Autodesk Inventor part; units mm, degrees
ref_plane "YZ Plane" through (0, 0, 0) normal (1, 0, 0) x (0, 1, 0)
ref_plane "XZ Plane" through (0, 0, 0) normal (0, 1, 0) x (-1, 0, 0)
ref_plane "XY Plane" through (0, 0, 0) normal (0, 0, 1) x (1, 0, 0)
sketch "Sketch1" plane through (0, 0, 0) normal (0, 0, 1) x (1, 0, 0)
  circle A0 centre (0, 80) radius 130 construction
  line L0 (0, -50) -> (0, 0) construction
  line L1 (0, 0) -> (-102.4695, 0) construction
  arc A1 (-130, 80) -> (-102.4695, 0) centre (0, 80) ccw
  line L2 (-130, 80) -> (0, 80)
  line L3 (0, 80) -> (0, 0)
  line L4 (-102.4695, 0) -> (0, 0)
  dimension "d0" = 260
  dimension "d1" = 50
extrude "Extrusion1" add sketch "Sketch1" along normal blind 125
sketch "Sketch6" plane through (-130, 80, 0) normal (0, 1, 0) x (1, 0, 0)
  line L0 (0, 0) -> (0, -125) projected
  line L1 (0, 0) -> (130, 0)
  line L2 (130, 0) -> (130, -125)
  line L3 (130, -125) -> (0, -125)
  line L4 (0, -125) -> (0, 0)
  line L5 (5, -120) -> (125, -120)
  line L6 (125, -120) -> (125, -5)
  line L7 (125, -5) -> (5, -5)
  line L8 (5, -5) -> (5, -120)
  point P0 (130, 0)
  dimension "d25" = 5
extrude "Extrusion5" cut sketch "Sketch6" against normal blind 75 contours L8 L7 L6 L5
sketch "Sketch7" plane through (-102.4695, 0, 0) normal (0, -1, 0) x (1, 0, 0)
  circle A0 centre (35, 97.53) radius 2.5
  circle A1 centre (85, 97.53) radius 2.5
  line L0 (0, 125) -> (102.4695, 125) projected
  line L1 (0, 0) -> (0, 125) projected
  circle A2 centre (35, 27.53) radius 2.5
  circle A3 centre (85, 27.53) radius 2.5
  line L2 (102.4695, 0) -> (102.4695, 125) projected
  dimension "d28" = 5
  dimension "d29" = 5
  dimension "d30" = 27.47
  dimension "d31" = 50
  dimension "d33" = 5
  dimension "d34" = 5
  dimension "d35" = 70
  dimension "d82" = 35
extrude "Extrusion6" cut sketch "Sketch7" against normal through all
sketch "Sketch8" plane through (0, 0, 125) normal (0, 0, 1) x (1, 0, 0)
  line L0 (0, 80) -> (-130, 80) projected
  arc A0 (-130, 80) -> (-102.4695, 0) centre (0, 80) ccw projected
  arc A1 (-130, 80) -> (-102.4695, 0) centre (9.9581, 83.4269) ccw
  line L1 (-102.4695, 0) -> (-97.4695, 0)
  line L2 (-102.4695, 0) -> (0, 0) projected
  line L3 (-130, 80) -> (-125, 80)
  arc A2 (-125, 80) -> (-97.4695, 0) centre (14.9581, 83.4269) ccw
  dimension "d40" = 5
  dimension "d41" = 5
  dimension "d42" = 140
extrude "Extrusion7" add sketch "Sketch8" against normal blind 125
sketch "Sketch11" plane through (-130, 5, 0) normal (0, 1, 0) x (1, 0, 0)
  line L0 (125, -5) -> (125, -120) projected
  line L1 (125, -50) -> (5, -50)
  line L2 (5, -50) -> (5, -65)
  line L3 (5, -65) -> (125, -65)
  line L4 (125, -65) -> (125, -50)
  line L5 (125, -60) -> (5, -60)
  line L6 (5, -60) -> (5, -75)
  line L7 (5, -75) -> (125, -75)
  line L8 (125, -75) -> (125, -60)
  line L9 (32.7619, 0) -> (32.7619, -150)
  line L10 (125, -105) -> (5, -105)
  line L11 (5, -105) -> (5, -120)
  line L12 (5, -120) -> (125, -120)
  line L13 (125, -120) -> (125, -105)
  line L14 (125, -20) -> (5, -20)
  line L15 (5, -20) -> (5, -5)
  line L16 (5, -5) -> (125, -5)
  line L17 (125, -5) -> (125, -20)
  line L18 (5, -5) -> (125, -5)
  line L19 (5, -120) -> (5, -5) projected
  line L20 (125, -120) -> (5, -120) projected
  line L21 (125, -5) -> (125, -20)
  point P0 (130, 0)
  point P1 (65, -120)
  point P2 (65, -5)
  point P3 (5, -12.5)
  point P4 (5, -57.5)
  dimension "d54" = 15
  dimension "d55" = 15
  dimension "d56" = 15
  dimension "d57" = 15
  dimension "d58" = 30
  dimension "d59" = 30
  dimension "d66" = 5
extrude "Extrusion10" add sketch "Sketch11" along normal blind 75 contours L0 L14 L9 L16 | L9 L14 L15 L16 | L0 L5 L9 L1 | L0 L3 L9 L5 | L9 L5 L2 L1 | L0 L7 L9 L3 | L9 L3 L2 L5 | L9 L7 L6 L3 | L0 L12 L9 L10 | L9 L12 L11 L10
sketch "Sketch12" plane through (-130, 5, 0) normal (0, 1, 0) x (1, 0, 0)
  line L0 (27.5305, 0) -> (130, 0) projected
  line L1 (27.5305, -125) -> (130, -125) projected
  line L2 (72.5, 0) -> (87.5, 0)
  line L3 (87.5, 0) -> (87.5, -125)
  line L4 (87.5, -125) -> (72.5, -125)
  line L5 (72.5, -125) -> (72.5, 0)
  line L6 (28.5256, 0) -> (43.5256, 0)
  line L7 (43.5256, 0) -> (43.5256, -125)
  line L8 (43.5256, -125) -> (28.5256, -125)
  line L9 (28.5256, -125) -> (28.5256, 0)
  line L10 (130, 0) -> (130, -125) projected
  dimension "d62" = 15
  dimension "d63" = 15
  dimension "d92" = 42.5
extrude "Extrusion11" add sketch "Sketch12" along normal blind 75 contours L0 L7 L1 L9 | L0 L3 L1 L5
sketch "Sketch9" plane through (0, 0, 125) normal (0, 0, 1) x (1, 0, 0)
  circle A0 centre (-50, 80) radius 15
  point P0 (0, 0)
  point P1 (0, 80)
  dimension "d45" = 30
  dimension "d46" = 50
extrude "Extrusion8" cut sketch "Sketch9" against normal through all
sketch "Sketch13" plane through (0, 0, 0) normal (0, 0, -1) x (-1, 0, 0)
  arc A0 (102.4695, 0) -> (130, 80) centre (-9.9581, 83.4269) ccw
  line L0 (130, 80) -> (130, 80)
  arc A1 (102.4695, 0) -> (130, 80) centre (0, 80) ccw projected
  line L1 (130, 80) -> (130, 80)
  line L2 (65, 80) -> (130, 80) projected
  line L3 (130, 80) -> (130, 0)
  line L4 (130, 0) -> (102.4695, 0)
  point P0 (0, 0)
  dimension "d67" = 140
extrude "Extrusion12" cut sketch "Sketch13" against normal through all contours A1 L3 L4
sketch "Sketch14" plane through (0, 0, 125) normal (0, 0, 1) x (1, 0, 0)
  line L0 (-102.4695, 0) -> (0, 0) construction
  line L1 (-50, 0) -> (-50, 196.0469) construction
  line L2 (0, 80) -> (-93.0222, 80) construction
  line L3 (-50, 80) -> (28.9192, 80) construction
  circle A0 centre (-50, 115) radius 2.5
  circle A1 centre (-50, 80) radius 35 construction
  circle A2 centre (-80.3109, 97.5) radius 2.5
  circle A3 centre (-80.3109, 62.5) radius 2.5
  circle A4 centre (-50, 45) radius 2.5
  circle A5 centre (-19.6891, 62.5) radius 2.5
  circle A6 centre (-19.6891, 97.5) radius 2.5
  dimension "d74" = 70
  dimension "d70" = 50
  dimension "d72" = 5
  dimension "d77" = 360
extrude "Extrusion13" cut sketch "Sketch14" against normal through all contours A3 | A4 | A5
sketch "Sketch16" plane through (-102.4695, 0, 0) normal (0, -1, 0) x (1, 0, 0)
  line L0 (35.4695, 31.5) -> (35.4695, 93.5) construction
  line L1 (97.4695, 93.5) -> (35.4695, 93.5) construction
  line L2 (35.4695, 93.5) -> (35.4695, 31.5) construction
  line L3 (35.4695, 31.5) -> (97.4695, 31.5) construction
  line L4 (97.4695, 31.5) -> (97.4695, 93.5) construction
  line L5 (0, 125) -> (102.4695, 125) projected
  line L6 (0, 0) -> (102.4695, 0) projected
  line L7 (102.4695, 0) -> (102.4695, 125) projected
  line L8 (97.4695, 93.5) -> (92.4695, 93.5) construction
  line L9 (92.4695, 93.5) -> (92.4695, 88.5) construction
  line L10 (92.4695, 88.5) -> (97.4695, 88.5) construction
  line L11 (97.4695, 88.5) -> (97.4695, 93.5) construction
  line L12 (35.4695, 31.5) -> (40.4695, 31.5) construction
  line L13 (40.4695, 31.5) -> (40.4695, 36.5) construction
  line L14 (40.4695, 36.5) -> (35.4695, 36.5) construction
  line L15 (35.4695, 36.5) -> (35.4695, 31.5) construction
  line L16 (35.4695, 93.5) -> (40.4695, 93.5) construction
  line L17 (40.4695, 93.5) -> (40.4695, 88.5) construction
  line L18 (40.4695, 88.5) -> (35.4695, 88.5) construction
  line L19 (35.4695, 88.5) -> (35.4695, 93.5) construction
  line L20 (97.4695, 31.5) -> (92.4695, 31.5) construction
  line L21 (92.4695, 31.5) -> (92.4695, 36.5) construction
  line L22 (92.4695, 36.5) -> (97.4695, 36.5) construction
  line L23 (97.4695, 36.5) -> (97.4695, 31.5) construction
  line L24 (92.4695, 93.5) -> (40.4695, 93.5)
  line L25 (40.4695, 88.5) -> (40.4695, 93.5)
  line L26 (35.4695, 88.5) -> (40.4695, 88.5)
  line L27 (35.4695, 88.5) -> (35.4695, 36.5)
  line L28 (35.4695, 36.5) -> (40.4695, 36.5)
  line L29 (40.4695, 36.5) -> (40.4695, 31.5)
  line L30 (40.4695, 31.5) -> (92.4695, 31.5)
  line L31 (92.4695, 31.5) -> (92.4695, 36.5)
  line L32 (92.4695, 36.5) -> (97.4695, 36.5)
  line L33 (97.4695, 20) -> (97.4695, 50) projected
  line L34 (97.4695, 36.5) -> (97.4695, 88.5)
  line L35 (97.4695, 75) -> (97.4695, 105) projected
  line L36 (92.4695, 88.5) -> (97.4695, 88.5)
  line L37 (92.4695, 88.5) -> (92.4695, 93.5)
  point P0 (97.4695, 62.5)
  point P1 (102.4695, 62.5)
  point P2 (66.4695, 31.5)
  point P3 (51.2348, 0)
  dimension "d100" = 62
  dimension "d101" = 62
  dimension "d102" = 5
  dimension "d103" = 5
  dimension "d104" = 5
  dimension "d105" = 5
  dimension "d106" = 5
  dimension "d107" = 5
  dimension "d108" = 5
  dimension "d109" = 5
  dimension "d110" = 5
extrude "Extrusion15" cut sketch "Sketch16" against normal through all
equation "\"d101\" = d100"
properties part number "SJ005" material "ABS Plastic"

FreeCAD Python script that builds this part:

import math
import FreeCAD as App
import Part
import Sketcher
from FreeCAD import Vector

doc = App.newDocument("Part")
body = doc.addObject("PartDesign::Body", "Body")

# Sketch on XY plane
sketch1 = body.newObject("Sketcher::SketchObject", "Sketch")
sketch1.AttachmentSupport = (doc.getObject("XY_Plane"), [""])
sketch1.MapMode = "FlatFace"
sketch1.addGeometry([
    Part.LineSegment(Vector(0, 80, 0), Vector(-130, 80, 0)),
    Part.ArcOfCircle(Part.Circle(Vector(0, 80, 0), Vector(0, 0, 1), 130), math.radians(180), math.radians(217.979875)),
    Part.LineSegment(Vector(-102.4695, 0, 0), Vector(0, 0, 0)),
    Part.LineSegment(Vector(0, 0, 0), Vector(0, 80, 0)),
], False)
sketch1.addConstraint([
    Sketcher.Constraint("Coincident", 0, 2, 1, 1),
    Sketcher.Constraint("Coincident", 1, 2, 2, 1),
    Sketcher.Constraint("Coincident", 2, 2, 3, 1),
    Sketcher.Constraint("Coincident", 3, 2, 0, 1),
    Sketcher.Constraint("Horizontal", 0),
    Sketcher.Constraint("Horizontal", 2),
    Sketcher.Constraint("Vertical", 3),
    Sketcher.Constraint("Coincident", 2, 2, -1, 1),
    Sketcher.Constraint("Coincident", 3, 2, 1, 3),
    Sketcher.Constraint("Radius", 1, 130.0),
    Sketcher.Constraint("DistanceY", 3, 1, 3, 2, 80.0),
])
pad1 = body.newObject("PartDesign::Pad", "Pad")
pad1.Profile = sketch1
pad1.Length = 125

# Sketch on XZ plane
sketch2 = body.newObject("Sketcher::SketchObject", "Sketch001")
sketch2.AttachmentSupport = (doc.getObject("XZ_Plane"), [""])
sketch2.MapMode = "FlatFace"
sketch2.AttachmentOffset = App.Placement(Vector(0, 0, -80), App.Rotation())
sketch2.addGeometry([
    Part.LineSegment(Vector(-125, 5, 0), Vector(-125, 120, 0)),
    Part.LineSegment(Vector(-125, 120, 0), Vector(-5, 120, 0)),
    Part.LineSegment(Vector(-5, 120, 0), Vector(-5, 5, 0)),
    Part.LineSegment(Vector(-5, 5, 0), Vector(-125, 5, 0)),
], False)
sketch2.addConstraint([
    Sketcher.Constraint("Coincident", 0, 2, 1, 1),
    Sketcher.Constraint("Coincident", 1, 2, 2, 1),
    Sketcher.Constraint("Coincident", 2, 2, 3, 1),
    Sketcher.Constraint("Coincident", 3, 2, 0, 1),
    Sketcher.Constraint("Vertical", 0),
    Sketcher.Constraint("Horizontal", 1),
    Sketcher.Constraint("Vertical", 2),
    Sketcher.Constraint("Horizontal", 3),
    Sketcher.Constraint("DistanceX", 1, 2, -1, 1, 5.0),
    Sketcher.Constraint("DistanceY", -1, 1, 2, 2, 5.0),
    Sketcher.Constraint("DistanceX", 1, 1, 1, 2, 120.0),
    Sketcher.Constraint("DistanceY", 0, 1, 0, 2, 115.0),
])
pocket1 = body.newObject("PartDesign::Pocket", "Pocket")
pocket1.Profile = sketch2
pocket1.Length = 75
pocket1.Reversed = True

# Sketch on XZ plane
sketch3 = body.newObject("Sketcher::SketchObject", "Sketch002")
sketch3.AttachmentSupport = (doc.getObject("XZ_Plane"), [""])
sketch3.MapMode = "FlatFace"
sketch3.addGeometry([
    Part.Circle(Vector(-67.4695, 97.53, 0), Vector(0, 0, 1), 2.5),
    Part.Circle(Vector(-17.4695, 97.53, 0), Vector(0, 0, 1), 2.5),
    Part.Circle(Vector(-67.4695, 27.53, 0), Vector(0, 0, 1), 2.5),
    Part.Circle(Vector(-17.4695, 27.53, 0), Vector(0, 0, 1), 2.5),
], False)
sketch3.addConstraint([
    Sketcher.Constraint("Equal", 0, 1),
    Sketcher.Constraint("Equal", 1, 2),
    Sketcher.Constraint("Equal", 2, 3),
    Sketcher.Constraint("Horizontal", 0, 3, 1, 3),
    Sketcher.Constraint("Horizontal", 2, 3, 3, 3),
    Sketcher.Constraint("Vertical", 0, 3, 2, 3),
    Sketcher.Constraint("Vertical", 1, 3, 3, 3),
    Sketcher.Constraint("Diameter", 0, 5.0),
    Sketcher.Constraint("DistanceX", 0, 3, 1, 3, 50.0),
    Sketcher.Constraint("DistanceY", 2, 3, 0, 3, 70.0),
    Sketcher.Constraint("DistanceY", -1, 1, 0, 3, 97.53),
    Sketcher.Constraint("DistanceX", 0, 3, -1, 1, 67.4695),
])
pocket2 = body.newObject("PartDesign::Pocket", "Pocket001")
pocket2.Profile = sketch3
pocket2.Type = "ThroughAll"

# Sketch on XY plane
sketch4 = body.newObject("Sketcher::SketchObject", "Sketch003")
sketch4.AttachmentSupport = (doc.getObject("XY_Plane"), [""])
sketch4.MapMode = "FlatFace"
sketch4.AttachmentOffset = App.Placement(Vector(0, 0, 125), App.Rotation())
sketch4.addGeometry([
    Part.ArcOfCircle(Part.Circle(Vector(14.9581, 83.4269, 0), Vector(0, 0, 1), 140.000048), math.radians(-178.597382), math.radians(-143.422738)),
    Part.LineSegment(Vector(-125, 80, 0), Vector(-130, 80, 0)),
    Part.ArcOfCircle(Part.Circle(Vector(0, 80, 0), Vector(0, 0, 1), 130), math.radians(180), math.radians(217.979875)),
    Part.LineSegment(Vector(-102.4695, 0, 0), Vector(-97.4695, 0, 0)),
], False)
sketch4.addConstraint([
    Sketcher.Constraint("Coincident", 0, 1, 1, 1),
    Sketcher.Constraint("Coincident", 1, 2, 2, 1),
    Sketcher.Constraint("Coincident", 2, 2, 3, 1),
    Sketcher.Constraint("Coincident", 3, 2, 0, 2),
    Sketcher.Constraint("Horizontal", 1),
    Sketcher.Constraint("Horizontal", 3),
    Sketcher.Constraint("PointOnObject", 2, 3, -2),
    Sketcher.Constraint("PointOnObject", 2, 2, -1),
    Sketcher.Constraint("Horizontal", 2, 3, 0, 1),
    Sketcher.Constraint("Equal", 1, 3),
    Sketcher.Constraint("Radius", 0, 140.0),
    Sketcher.Constraint("DistanceX", 1, 2, 1, 1, 5.0),
    Sketcher.Constraint("Radius", 2, 130.0),
    Sketcher.Constraint("DistanceY", -1, 1, 2, 3, 80.0),
])
pad2 = body.newObject("PartDesign::Pad", "Pad001")
pad2.Profile = sketch4
pad2.Length = 125
pad2.Reversed = True

# Sketch on XZ plane
sketch5 = body.newObject("Sketcher::SketchObject", "Sketch004")
sketch5.AttachmentSupport = (doc.getObject("XZ_Plane"), [""])
sketch5.MapMode = "FlatFace"
sketch5.AttachmentOffset = App.Placement(Vector(0, 0, -5), App.Rotation())
sketch5.addGeometry([
    Part.LineSegment(Vector(-5, 20, 0), Vector(-5, 5, 0)),  # 0
    Part.LineSegment(Vector(-5, 5, 0), Vector(-125, 5, 0)),  # 1
    Part.LineSegment(Vector(-125, 5, 0), Vector(-125, 20, 0)),  # 2
    Part.LineSegment(Vector(-125, 20, 0), Vector(-5, 20, 0)),  # 3
    Part.LineSegment(Vector(-5, 50, 0), Vector(-125, 50, 0)),  # 4
    Part.LineSegment(Vector(-125, 50, 0), Vector(-125, 75, 0)),  # 5
    Part.LineSegment(Vector(-125, 75, 0), Vector(-5, 75, 0)),  # 6
    Part.LineSegment(Vector(-5, 75, 0), Vector(-5, 50, 0)),  # 7
    Part.LineSegment(Vector(-5, 120, 0), Vector(-5, 105, 0)),  # 8
    Part.LineSegment(Vector(-5, 105, 0), Vector(-125, 105, 0)),  # 9
    Part.LineSegment(Vector(-125, 105, 0), Vector(-125, 120, 0)),  # 10
    Part.LineSegment(Vector(-125, 120, 0), Vector(-5, 120, 0)),  # 11
], False)
sketch5.addConstraint([
    Sketcher.Constraint("Coincident", 0, 2, 1, 1),
    Sketcher.Constraint("Coincident", 1, 2, 2, 1),
    Sketcher.Constraint("Coincident", 2, 2, 3, 1),
    Sketcher.Constraint("Coincident", 3, 2, 0, 1),
    Sketcher.Constraint("Coincident", 4, 2, 5, 1),
    Sketcher.Constraint("Coincident", 5, 2, 6, 1),
    Sketcher.Constraint("Coincident", 6, 2, 7, 1),
    Sketcher.Constraint("Coincident", 7, 2, 4, 1),
    Sketcher.Constraint("Coincident", 8, 2, 9, 1),
    Sketcher.Constraint("Coincident", 9, 2, 10, 1),
    Sketcher.Constraint("Coincident", 10, 2, 11, 1),
    Sketcher.Constraint("Coincident", 11, 2, 8, 1),
    Sketcher.Constraint("Vertical", 0),
    Sketcher.Constraint("Horizontal", 1),
    Sketcher.Constraint("Vertical", 2),
    Sketcher.Constraint("Horizontal", 3),
    Sketcher.Constraint("Horizontal", 4),
    Sketcher.Constraint("Vertical", 5),
    Sketcher.Constraint("Horizontal", 6),
    Sketcher.Constraint("Vertical", 7),
    Sketcher.Constraint("Vertical", 8),
    Sketcher.Constraint("Horizontal", 9),
    Sketcher.Constraint("Vertical", 10),
    Sketcher.Constraint("Horizontal", 11),
    Sketcher.Constraint("Vertical", 2, 2, 4, 2),
    Sketcher.Constraint("Vertical", 3, 2, 6, 2),
    Sketcher.Constraint("Vertical", 7, 2, 8, 2),
    Sketcher.Constraint("Vertical", 5, 2, 9, 2),
    Sketcher.Constraint("Equal", 2, 8),
    Sketcher.Constraint("DistanceY", 0, 2, 0, 1, 15.0),
    Sketcher.Constraint("DistanceX", 0, 2, -1, 1, 5.0),
    Sketcher.Constraint("DistanceY", -1, 1, 0, 2, 5.0),
    Sketcher.Constraint("DistanceY", 2, 2, 4, 2, 30.0),
    Sketcher.Constraint("DistanceY", 6, 2, 8, 2, 30.0),
    Sketcher.Constraint("DistanceX", 1, 2, 1, 1, 120.0),
    Sketcher.Constraint("DistanceY", 5, 1, 5, 2, 25.0),
])
pad3 = body.newObject("PartDesign::Pad", "Pad002")
pad3.Profile = sketch5
pad3.Length = 75
pad3.Reversed = True

# Sketch on XZ plane
sketch6 = body.newObject("Sketcher::SketchObject", "Sketch005")
sketch6.AttachmentSupport = (doc.getObject("XZ_Plane"), [""])
sketch6.MapMode = "FlatFace"
sketch6.AttachmentOffset = App.Placement(Vector(0, 0, -5), App.Rotation())
sketch6.addGeometry([
    Part.LineSegment(Vector(-86.4744, 0, 0), Vector(-101.4744, 0, 0)),  # 0
    Part.LineSegment(Vector(-101.4744, 0, 0), Vector(-101.4744, 125, 0)),  # 1
    Part.LineSegment(Vector(-101.4744, 125, 0), Vector(-86.4744, 125, 0)),  # 2
    Part.LineSegment(Vector(-86.4744, 125, 0), Vector(-86.4744, 0, 0)),  # 3
    Part.LineSegment(Vector(-42.5, 0, 0), Vector(-57.5, 0, 0)),  # 4
    Part.LineSegment(Vector(-57.5, 0, 0), Vector(-57.5, 125, 0)),  # 5
    Part.LineSegment(Vector(-57.5, 125, 0), Vector(-42.5, 125, 0)),  # 6
    Part.LineSegment(Vector(-42.5, 125, 0), Vector(-42.5, 0, 0)),  # 7
], False)
sketch6.addConstraint([
    Sketcher.Constraint("Coincident", 0, 2, 1, 1),
    Sketcher.Constraint("Coincident", 1, 2, 2, 1),
    Sketcher.Constraint("Coincident", 2, 2, 3, 1),
    Sketcher.Constraint("Coincident", 3, 2, 0, 1),
    Sketcher.Constraint("Coincident", 4, 2, 5, 1),
    Sketcher.Constraint("Coincident", 5, 2, 6, 1),
    Sketcher.Constraint("Coincident", 6, 2, 7, 1),
    Sketcher.Constraint("Coincident", 7, 2, 4, 1),
    Sketcher.Constraint("Horizontal", 0),
    Sketcher.Constraint("Vertical", 1),
    Sketcher.Constraint("Horizontal", 2),
    Sketcher.Constraint("Vertical", 3),
    Sketcher.Constraint("Horizontal", 4),
    Sketcher.Constraint("Vertical", 5),
    Sketcher.Constraint("Horizontal", 6),
    Sketcher.Constraint("Vertical", 7),
    Sketcher.Constraint("PointOnObject", 0, 2, -1),
    Sketcher.Constraint("PointOnObject", 4, 2, -1),
    Sketcher.Constraint("Horizontal", 2, 2, 5, 2),
    Sketcher.Constraint("Equal", 2, 4),
    Sketcher.Constraint("DistanceX", 0, 2, 0, 1, 15.0),
    Sketcher.Constraint("DistanceX", 6, 2, -1, 1, 42.5),
    Sketcher.Constraint("DistanceY", 1, 1, 1, 2, 125.0),
    Sketcher.Constraint("DistanceX", 0, 2, -1, 1, 101.4744),
])
pad4 = body.newObject("PartDesign::Pad", "Pad003")
pad4.Profile = sketch6
pad4.Length = 75
pad4.Reversed = True

# Sketch on XY plane
sketch7 = body.newObject("Sketcher::SketchObject", "Sketch006")
sketch7.AttachmentSupport = (doc.getObject("XY_Plane"), [""])
sketch7.MapMode = "FlatFace"
sketch7.AttachmentOffset = App.Placement(Vector(0, 0, 125), App.Rotation())
sketch7.addGeometry(Part.Circle(Vector(-50, 80, 0), Vector(0, 0, 1), 15), False)
sketch7.addConstraint([
    Sketcher.Constraint("Diameter", 0, 30.0),
    Sketcher.Constraint("DistanceX", 0, 3, -1, 1, 50.0),
    Sketcher.Constraint("DistanceY", -1, 1, 0, 3, 80.0),
])
pocket3 = body.newObject("PartDesign::Pocket", "Pocket002")
pocket3.Profile = sketch7
pocket3.Type = "ThroughAll"

# Sketch on XY plane
sketch8 = body.newObject("Sketcher::SketchObject", "Sketch007")
sketch8.AttachmentSupport = (doc.getObject("XY_Plane"), [""])
sketch8.MapMode = "FlatFace"
sketch8.addGeometry([
    Part.ArcOfCircle(Part.Circle(Vector(0, 80, 0), Vector(0, 0, 1), 129.999994), math.radians(180), math.radians(217.979875)),
    Part.LineSegment(Vector(-102.4695, 0, 0), Vector(-130, 0, 0)),
    Part.LineSegment(Vector(-130, 0, 0), Vector(-130, 80, 0)),
], False)
sketch8.addConstraint([
    Sketcher.Constraint("Coincident", 0, 2, 1, 1),
    Sketcher.Constraint("Coincident", 1, 2, 2, 1),
    Sketcher.Constraint("Tangent", 2, 2, 0, 1),
    Sketcher.Constraint("Horizontal", 1),
    Sketcher.Constraint("Vertical", 2),
    Sketcher.Constraint("PointOnObject", 0, 3, -2),
    Sketcher.Constraint("PointOnObject", 0, 2, -1),
    Sketcher.Constraint("Radius", 0, 130.0),
    Sketcher.Constraint("DistanceY", 2, 1, 2, 2, 80.0),
])
pocket4 = body.newObject("PartDesign::Pocket", "Pocket003")
pocket4.Profile = sketch8
pocket4.Type = "ThroughAll"
pocket4.Reversed = True

# Sketch on XY plane
sketch9 = body.newObject("Sketcher::SketchObject", "Sketch008")
sketch9.AttachmentSupport = (doc.getObject("XY_Plane"), [""])
sketch9.MapMode = "FlatFace"
sketch9.AttachmentOffset = App.Placement(Vector(0, 0, 125), App.Rotation())
sketch9.addGeometry([
    Part.Circle(Vector(-80.3109, 62.5, 0), Vector(0, 0, 1), 2.5),
    Part.Circle(Vector(-50, 45, 0), Vector(0, 0, 1), 2.5),
    Part.Circle(Vector(-19.6891, 62.5, 0), Vector(0, 0, 1), 2.5),
], False)
sketch9.addConstraint([
    Sketcher.Constraint("Equal", 0, 1),
    Sketcher.Constraint("Equal", 1, 2),
    Sketcher.Constraint("Horizontal", 0, 3, 2, 3),
    Sketcher.Constraint("Diameter", 0, 5.0),
    Sketcher.Constraint("DistanceX", 1, 3, -1, 1, 50.0),
    Sketcher.Constraint("DistanceY", -1, 1, 1, 3, 45.0),
    Sketcher.Constraint("DistanceY", -1, 1, 0, 3, 62.5),
    Sketcher.Constraint("DistanceX", 0, 3, -1, 1, 80.311),
    Sketcher.Constraint("DistanceX", 2, 3, -1, 1, 19.689),
])
pocket5 = body.newObject("PartDesign::Pocket", "Pocket004")
pocket5.Profile = sketch9
pocket5.Type = "ThroughAll"

# Sketch on XZ plane
sketch10 = body.newObject("Sketcher::SketchObject", "Sketch009")
sketch10.AttachmentSupport = (doc.getObject("XZ_Plane"), [""])
sketch10.MapMode = "FlatFace"
sketch10.addGeometry([
    Part.LineSegment(Vector(-10, 88.5, 0), Vector(-10, 93.5, 0)),  # 0
    Part.LineSegment(Vector(-10, 93.5, 0), Vector(-62, 93.5, 0)),  # 1
    Part.LineSegment(Vector(-62, 93.5, 0), Vector(-62, 88.5, 0)),  # 2
    Part.LineSegment(Vector(-62, 88.5, 0), Vector(-67, 88.5, 0)),  # 3
    Part.LineSegment(Vector(-67, 88.5, 0), Vector(-67, 36.5, 0)),  # 4
    Part.LineSegment(Vector(-67, 36.5, 0), Vector(-62, 36.5, 0)),  # 5
    Part.LineSegment(Vector(-62, 36.5, 0), Vector(-62, 31.5, 0)),  # 6
    Part.LineSegment(Vector(-62, 31.5, 0), Vector(-10, 31.5, 0)),  # 7
    Part.LineSegment(Vector(-10, 31.5, 0), Vector(-10, 36.5, 0)),  # 8
    Part.LineSegment(Vector(-10, 36.5, 0), Vector(-5, 36.5, 0)),  # 9
    Part.LineSegment(Vector(-5, 36.5, 0), Vector(-5, 88.5, 0)),  # 10
    Part.LineSegment(Vector(-5, 88.5, 0), Vector(-10, 88.5, 0)),  # 11
], False)
sketch10.addConstraint([
    Sketcher.Constraint("Coincident", 0, 2, 1, 1),
    Sketcher.Constraint("Coincident", 1, 2, 2, 1),
    Sketcher.Constraint("Coincident", 2, 2, 3, 1),
    Sketcher.Constraint("Coincident", 3, 2, 4, 1),
    Sketcher.Constraint("Coincident", 4, 2, 5, 1),
    Sketcher.Constraint("Coincident", 5, 2, 6, 1),
    Sketcher.Constraint("Coincident", 6, 2, 7, 1),
    Sketcher.Constraint("Coincident", 7, 2, 8, 1),
    Sketcher.Constraint("Coincident", 8, 2, 9, 1),
    Sketcher.Constraint("Coincident", 9, 2, 10, 1),
    Sketcher.Constraint("Coincident", 10, 2, 11, 1),
    Sketcher.Constraint("Coincident", 11, 2, 0, 1),
    Sketcher.Constraint("Vertical", 0),
    Sketcher.Constraint("Horizontal", 1),
    Sketcher.Constraint("Vertical", 2),
    Sketcher.Constraint("Horizontal", 3),
    Sketcher.Constraint("Vertical", 4),
    Sketcher.Constraint("Horizontal", 5),
    Sketcher.Constraint("Vertical", 6),
    Sketcher.Constraint("Horizontal", 7),
    Sketcher.Constraint("Vertical", 8),
    Sketcher.Constraint("Horizontal", 9),
    Sketcher.Constraint("Vertical", 10),
    Sketcher.Constraint("Horizontal", 11),
    Sketcher.Constraint("Horizontal", 5, 2, 8, 2),
    Sketcher.Constraint("Horizontal", 3, 2, 10, 2),
    Sketcher.Constraint("Vertical", 2, 2, 5, 2),
    Sketcher.Constraint("Vertical", 0, 2, 7, 2),
    Sketcher.Constraint("Equal", 5, 9),
    Sketcher.Constraint("Equal", 11, 0),
    Sketcher.Constraint("Equal", 7, 4),
    Sketcher.Constraint("Equal", 2, 6),
    Sketcher.Constraint("DistanceX", 3, 2, 3, 1, 5.0),
    Sketcher.Constraint("DistanceX", 1, 2, -1, 1, 62.0),
    Sketcher.Constraint("DistanceX", 9, 2, -1, 1, 5.0),
    Sketcher.Constraint("DistanceY", -1, 1, 0, 2, 93.5),
])
pocket6 = body.newObject("PartDesign::Pocket", "Pocket005")
pocket6.Profile = sketch10
pocket6.Type = "ThroughAll"

doc.recompute()
